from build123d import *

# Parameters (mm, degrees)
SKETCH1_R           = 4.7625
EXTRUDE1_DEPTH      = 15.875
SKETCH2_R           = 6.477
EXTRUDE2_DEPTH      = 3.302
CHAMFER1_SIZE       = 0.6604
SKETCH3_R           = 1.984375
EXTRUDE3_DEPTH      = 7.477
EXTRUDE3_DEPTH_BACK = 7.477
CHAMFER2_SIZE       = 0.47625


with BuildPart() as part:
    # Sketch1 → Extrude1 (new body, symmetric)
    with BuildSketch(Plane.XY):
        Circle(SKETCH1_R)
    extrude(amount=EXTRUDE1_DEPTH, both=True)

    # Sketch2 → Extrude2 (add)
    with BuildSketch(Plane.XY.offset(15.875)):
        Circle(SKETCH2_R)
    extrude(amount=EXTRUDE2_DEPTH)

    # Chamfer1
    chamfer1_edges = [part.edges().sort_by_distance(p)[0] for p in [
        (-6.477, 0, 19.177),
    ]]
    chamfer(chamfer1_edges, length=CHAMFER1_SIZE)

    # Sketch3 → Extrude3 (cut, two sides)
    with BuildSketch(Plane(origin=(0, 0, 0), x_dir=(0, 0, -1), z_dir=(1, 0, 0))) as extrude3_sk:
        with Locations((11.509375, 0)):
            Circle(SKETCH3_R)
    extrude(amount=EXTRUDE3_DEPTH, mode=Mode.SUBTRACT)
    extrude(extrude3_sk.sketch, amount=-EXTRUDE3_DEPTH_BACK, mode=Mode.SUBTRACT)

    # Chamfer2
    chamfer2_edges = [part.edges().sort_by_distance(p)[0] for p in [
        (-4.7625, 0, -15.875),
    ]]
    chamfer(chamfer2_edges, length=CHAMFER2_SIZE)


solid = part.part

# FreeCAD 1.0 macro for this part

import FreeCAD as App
import Part
import Sketcher
from FreeCAD import Vector
Q = App.Units.Quantity


def edges_at(feature, points):
    """Names of the edges that pass closest to the given points."""
    edges = feature.Shape.Edges
    near = lambda p: min(range(len(edges)), key=lambda i: edges[i].distToShape(Part.Vertex(*p))[0])
    return sorted({f"Edge{near(p) + 1}" for p in points})

doc = App.newDocument("Part")
body = doc.addObject("PartDesign::Body", "Body")

# Sketch on XY plane
sketch1 = doc.addObject("Sketcher::SketchObject", "Sketch")
body.addObject(sketch1)
sketch1.AttachmentSupport = (doc.XY_Plane, [""])
sketch1.MapMode = "FlatFace"
sketch1.addGeometry(Part.Circle(Vector(0, 0, 0), Vector(0, 0, 1), 4.8), False)
sketch1.addConstraint([
    Sketcher.Constraint("Coincident", 0, 3, -1, 1),
    Sketcher.Constraint("Diameter", 0, Q("0.375 in")),
])
pad1 = doc.addObject("PartDesign::Pad", "Pad")
body.addObject(pad1)
pad1.Profile = sketch1
pad1.Length = Q("1.25 in")
pad1.Midplane = True

# Sketch on XY plane
sketch2 = doc.addObject("Sketcher::SketchObject", "Sketch001")
body.addObject(sketch2)
sketch2.AttachmentSupport = (doc.XY_Plane, [""])
sketch2.MapMode = "FlatFace"
sketch2.AttachmentOffset = App.Placement(Vector(0, 0, 0.625 * 25.4), App.Rotation())
sketch2.addGeometry(Part.Circle(Vector(0, 0, 0), Vector(0, 0, 1), 6), False)
sketch2.addConstraint([
    Sketcher.Constraint("Coincident", 0, 3, -1, 1),
    Sketcher.Constraint("Diameter", 0, Q("0.51 in")),
])
pad2 = doc.addObject("PartDesign::Pad", "Pad001")
body.addObject(pad2)
pad2.Profile = sketch2
pad2.Length = Q("0.13 in")
doc.recompute()

chamfer = doc.addObject("PartDesign::Chamfer", "Chamfer")
body.addObject(chamfer)
chamfer.Base = (pad2, edges_at(pad2, [(-6.477, 0, 19.177)]))
chamfer.Size = Q("0.026 in")

# Sketch on YZ plane
sketch3 = doc.addObject("Sketcher::SketchObject", "Sketch002")
body.addObject(sketch3)
sketch3.AttachmentSupport = (doc.YZ_Plane, [""])
sketch3.MapMode = "FlatFace"
sketch3.addGeometry(Part.Circle(Vector(0, -11.5, 0), Vector(0, 0, 1), 2), False)
sketch3.addConstraint([
    Sketcher.Constraint("PointOnObject", 0, 3, -2),
    Sketcher.Constraint("Diameter", 0, Q("0.15625 in")),
    Sketcher.Constraint("DistanceY", 0, 3, -1, 1, Q("0.453125 in")),
])
pocket1 = doc.addObject("PartDesign::Pocket", "Pocket")
body.addObject(pocket1)
pocket1.Profile = sketch3
pocket1.Type = "ThroughAll"
pocket1.Midplane = True
doc.recompute()

chamfer2 = doc.addObject("PartDesign::Chamfer", "Chamfer001")
body.addObject(chamfer2)
chamfer2.Base = (pocket1, edges_at(pocket1, [(-4.763, 0, -15.875)]))
chamfer2.Size = 0.47625

doc.recompute()
